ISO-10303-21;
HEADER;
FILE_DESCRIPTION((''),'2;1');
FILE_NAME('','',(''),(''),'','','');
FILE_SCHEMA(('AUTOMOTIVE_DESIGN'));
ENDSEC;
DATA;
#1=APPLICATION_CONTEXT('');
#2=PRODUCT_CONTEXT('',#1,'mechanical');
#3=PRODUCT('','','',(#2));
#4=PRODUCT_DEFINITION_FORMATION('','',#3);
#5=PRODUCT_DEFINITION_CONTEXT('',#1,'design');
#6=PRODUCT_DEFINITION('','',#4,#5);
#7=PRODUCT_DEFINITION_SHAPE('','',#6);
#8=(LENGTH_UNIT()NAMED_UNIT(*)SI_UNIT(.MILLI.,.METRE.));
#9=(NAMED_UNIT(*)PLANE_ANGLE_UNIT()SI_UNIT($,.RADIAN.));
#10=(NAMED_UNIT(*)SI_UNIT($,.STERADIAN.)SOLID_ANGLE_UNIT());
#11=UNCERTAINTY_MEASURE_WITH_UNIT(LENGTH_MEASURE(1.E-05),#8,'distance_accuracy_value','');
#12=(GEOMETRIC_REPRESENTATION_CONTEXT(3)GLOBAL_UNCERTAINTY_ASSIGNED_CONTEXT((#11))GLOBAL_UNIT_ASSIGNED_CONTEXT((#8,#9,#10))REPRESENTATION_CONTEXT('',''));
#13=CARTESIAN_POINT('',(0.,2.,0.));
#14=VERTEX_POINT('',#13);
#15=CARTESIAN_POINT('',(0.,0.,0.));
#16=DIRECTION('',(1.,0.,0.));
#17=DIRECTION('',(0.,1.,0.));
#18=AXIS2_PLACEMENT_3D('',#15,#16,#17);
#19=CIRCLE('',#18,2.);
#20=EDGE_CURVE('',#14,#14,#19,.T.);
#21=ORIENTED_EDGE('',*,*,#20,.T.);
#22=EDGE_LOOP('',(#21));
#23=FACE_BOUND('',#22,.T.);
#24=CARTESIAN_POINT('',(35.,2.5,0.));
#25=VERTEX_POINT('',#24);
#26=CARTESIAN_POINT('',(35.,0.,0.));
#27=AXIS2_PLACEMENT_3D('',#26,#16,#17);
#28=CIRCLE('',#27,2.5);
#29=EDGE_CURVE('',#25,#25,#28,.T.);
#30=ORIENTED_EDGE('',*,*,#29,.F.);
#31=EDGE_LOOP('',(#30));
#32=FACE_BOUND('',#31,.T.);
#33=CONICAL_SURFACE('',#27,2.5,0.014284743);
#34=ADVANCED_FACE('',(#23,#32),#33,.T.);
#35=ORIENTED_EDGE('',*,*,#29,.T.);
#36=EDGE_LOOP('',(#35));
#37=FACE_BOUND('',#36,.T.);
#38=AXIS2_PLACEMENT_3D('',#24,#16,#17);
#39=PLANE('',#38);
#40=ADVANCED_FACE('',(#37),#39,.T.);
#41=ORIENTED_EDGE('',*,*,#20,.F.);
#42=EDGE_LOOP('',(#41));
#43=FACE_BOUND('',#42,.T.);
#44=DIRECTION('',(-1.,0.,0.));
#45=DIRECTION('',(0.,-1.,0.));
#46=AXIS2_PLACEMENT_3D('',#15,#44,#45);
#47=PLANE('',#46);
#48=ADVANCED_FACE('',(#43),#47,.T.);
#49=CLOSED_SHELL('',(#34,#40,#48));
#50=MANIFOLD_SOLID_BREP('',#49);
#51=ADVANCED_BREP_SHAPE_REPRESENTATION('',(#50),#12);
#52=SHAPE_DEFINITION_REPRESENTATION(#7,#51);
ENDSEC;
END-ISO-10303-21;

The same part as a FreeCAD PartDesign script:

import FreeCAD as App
import Part
import Sketcher
Q = App.Units.Quantity


def add_polygon(sketch, points):
    """Adds a closed chain of lines whose ends are joined by coincident constraints."""
    first, n = sketch.GeometryCount, len(points)
    for a, b in zip(points, points[1:] + points[:1]):
        sketch.addGeometry(Part.LineSegment(App.Vector(*a, 0), App.Vector(*b, 0)), False)
    for i in range(n):
        sketch.addConstraint(Sketcher.Constraint("Coincident", first + i, 2, first + (i + 1) % n, 1))

doc = App.newDocument("Part")
body = doc.addObject("PartDesign::Body", "Body")

# Sketch on XY plane
sketch1 = doc.addObject("Sketcher::SketchObject", "Sketch")
body.addObject(sketch1)
sketch1.AttachmentSupport = (doc.XY_Plane, [""])
sketch1.MapMode = "FlatFace"
add_polygon(sketch1, [(0, 2), (0, 0), (35, 0), (35, 2.5)])  # lines 0-3
sketch1.addConstraint([
    Sketcher.Constraint("Vertical", 0),
    Sketcher.Constraint("Horizontal", 1),
    Sketcher.Constraint("Vertical", 2),
    Sketcher.Constraint("Coincident", 0, 2, -1, 1),
    Sketcher.Constraint("DistanceX", 1, 1, 1, 2, Q("35 mm")),
    Sketcher.Constraint("DistanceY", 0, 2, 0, 1, Q("2 mm")),
    Sketcher.Constraint("DistanceY", 2, 1, 2, 2, Q("2.5 mm")),
])
revolution = doc.addObject("PartDesign::Revolution", "Revolution")
body.addObject(revolution)
revolution.Profile = sketch1
revolution.ReferenceAxis = (sketch1, ["H_Axis"])
revolution.Angle = 360

doc.recompute()
